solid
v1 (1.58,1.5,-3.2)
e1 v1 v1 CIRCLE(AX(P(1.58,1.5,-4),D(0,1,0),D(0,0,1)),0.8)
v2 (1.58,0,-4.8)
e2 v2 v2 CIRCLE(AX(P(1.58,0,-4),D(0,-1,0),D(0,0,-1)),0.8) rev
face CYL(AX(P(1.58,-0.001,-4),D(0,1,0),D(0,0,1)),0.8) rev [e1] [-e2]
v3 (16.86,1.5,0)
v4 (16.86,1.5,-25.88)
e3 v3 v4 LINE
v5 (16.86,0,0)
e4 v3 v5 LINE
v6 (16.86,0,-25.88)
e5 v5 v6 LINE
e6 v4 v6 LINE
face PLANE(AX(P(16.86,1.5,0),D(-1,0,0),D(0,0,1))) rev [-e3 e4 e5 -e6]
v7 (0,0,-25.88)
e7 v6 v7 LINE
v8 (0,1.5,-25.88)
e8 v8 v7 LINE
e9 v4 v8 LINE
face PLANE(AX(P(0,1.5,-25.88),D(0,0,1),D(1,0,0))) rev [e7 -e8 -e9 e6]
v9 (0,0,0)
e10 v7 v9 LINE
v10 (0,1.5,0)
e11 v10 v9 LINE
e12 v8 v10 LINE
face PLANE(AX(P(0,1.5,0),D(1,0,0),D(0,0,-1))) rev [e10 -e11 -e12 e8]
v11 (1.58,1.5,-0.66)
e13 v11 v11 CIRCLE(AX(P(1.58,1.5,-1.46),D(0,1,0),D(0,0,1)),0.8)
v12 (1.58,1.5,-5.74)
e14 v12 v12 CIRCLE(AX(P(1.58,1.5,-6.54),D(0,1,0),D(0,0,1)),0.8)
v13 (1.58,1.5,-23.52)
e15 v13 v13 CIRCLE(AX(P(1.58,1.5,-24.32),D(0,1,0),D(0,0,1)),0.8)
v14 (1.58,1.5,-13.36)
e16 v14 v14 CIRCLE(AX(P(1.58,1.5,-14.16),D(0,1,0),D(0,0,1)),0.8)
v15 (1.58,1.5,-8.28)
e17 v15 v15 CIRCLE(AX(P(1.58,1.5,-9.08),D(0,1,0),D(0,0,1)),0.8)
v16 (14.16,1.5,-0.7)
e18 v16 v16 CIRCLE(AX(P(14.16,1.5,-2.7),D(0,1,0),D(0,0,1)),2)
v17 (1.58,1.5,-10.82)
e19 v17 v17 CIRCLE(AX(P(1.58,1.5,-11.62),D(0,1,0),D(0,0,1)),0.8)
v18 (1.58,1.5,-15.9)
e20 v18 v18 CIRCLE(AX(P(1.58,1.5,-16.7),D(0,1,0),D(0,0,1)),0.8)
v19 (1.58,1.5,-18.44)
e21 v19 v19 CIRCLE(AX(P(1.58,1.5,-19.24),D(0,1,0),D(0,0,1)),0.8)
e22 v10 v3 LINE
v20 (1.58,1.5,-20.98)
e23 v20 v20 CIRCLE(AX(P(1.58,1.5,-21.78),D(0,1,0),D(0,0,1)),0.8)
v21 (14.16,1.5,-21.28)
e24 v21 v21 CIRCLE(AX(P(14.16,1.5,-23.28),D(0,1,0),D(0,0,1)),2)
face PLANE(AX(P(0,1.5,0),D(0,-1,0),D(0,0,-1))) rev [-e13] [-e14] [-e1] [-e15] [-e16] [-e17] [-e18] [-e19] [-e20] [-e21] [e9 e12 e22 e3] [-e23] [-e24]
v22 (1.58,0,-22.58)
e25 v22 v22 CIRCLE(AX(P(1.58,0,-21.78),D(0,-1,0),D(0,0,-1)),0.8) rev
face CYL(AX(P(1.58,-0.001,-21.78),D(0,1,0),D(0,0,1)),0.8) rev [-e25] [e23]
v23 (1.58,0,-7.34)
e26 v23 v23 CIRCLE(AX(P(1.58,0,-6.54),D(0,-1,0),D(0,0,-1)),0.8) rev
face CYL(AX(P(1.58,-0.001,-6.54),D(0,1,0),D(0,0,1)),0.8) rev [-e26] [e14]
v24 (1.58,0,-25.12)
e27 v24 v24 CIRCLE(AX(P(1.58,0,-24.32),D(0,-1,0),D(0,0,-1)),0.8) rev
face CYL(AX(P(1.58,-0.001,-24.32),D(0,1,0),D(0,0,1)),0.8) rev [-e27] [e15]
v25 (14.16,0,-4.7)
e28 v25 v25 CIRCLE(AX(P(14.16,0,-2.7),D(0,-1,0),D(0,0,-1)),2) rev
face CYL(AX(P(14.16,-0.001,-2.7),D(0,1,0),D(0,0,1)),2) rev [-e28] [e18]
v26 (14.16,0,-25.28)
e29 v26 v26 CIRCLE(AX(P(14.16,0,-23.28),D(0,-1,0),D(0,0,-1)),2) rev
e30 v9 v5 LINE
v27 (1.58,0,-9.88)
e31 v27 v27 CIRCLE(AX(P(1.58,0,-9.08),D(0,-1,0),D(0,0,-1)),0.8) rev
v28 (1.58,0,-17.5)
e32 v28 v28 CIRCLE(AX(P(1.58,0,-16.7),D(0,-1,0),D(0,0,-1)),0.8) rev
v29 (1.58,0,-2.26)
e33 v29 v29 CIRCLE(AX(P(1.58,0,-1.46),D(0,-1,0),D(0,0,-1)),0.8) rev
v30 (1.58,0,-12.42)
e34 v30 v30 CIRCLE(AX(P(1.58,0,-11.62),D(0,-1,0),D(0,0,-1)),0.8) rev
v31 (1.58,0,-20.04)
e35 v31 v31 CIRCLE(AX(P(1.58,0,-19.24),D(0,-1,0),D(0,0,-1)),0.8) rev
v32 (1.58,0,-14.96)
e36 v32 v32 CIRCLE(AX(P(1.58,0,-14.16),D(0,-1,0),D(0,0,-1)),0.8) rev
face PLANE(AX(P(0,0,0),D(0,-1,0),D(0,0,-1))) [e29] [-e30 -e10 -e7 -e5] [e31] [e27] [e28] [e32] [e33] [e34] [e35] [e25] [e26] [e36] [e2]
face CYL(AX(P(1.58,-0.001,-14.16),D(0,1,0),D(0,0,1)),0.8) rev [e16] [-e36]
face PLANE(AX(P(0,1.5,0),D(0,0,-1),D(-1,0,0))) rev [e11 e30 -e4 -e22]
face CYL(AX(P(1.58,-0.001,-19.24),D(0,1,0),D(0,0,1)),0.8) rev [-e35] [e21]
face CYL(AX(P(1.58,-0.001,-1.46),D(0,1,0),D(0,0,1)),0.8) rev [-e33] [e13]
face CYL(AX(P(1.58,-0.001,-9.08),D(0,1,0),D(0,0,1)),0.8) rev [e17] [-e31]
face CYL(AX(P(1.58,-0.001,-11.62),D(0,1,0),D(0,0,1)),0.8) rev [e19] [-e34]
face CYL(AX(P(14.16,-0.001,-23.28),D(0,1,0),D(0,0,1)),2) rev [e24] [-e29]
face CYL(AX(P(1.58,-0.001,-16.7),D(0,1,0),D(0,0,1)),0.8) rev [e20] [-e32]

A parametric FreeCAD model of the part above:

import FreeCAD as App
import Part
import Sketcher
from FreeCAD import Vector

doc = App.newDocument("Part")
body = doc.addObject("PartDesign::Body", "Body")

# Sketch on XZ plane
sketch1 = doc.addObject("Sketcher::SketchObject", "Sketch")
body.addObject(sketch1)
sketch1.AttachmentSupport = (doc.XZ_Plane, [""])
sketch1.MapMode = "FlatFace"
sketch1.addGeometry(Part.LineSegment(Vector(0, -25.88, 0), Vector(0, 0, 0)), False)
sketch1.addGeometry(Part.LineSegment(Vector(0, 0, 0), Vector(16.86, 0, 0)), False)
sketch1.addGeometry(Part.LineSegment(Vector(16.86, 0, 0), Vector(16.86, -25.88, 0)), False)
sketch1.addGeometry(Part.LineSegment(Vector(16.86, -25.88, 0), Vector(0, -25.88, 0)), False)
sketch1.addConstraint(Sketcher.Constraint("Coincident", 0, 2, 1, 1))
sketch1.addConstraint(Sketcher.Constraint("Coincident", 1, 2, 2, 1))
sketch1.addConstraint(Sketcher.Constraint("Coincident", 2, 2, 3, 1))
sketch1.addConstraint(Sketcher.Constraint("Coincident", 3, 2, 0, 1))
sketch1.addConstraint(Sketcher.Constraint("Vertical", 0))
sketch1.addConstraint(Sketcher.Constraint("Horizontal", 1))
sketch1.addConstraint(Sketcher.Constraint("Vertical", 2))
sketch1.addConstraint(Sketcher.Constraint("Horizontal", 3))
sketch1.addConstraint(Sketcher.Constraint("Coincident", 0, 2, -1, 1))
sketch1.addConstraint(Sketcher.Constraint("DistanceX", 1, 1, 1, 2, 16.86))
sketch1.addConstraint(Sketcher.Constraint("DistanceY", 0, 1, 0, 2, 25.88))
pad1 = doc.addObject("PartDesign::Pad", "Pad")
body.addObject(pad1)
pad1.Profile = sketch1
pad1.Length = 1.5
pad1.Reversed = True

# Sketch on XZ plane
sketch2 = doc.addObject("Sketcher::SketchObject", "Sketch001")
body.addObject(sketch2)
sketch2.AttachmentSupport = (doc.XZ_Plane, [""])
sketch2.MapMode = "FlatFace"
sketch2.AttachmentOffset = App.Placement(Vector(0, 0, -1.5), App.Rotation())
sketch2.addGeometry(Part.Circle(Vector(14.16, -23.28, 0), Vector(0, 0, 1), 2), False)
sketch2.addConstraint(Sketcher.Constraint("Diameter", 0, 4.0))
sketch2.addConstraint(Sketcher.Constraint("DistanceX", -1, 1, 0, 3, 14.16))
sketch2.addConstraint(Sketcher.Constraint("DistanceY", 0, 3, -1, 1, 23.28))
pocket1 = doc.addObject("PartDesign::Pocket", "Pocket")
body.addObject(pocket1)
pocket1.Profile = sketch2
pocket1.Type = "UpToFirst"
pocket1.Reversed = True

# Sketch on XZ plane
sketch3 = doc.addObject("Sketcher::SketchObject", "Sketch002")
body.addObject(sketch3)
sketch3.AttachmentSupport = (doc.XZ_Plane, [""])
sketch3.MapMode = "FlatFace"
sketch3.AttachmentOffset = App.Placement(Vector(0, 0, -1.5), App.Rotation())
sketch3.addGeometry(Part.Circle(Vector(14.16, -2.7, 0), Vector(0, 0, 1), 2), False)
sketch3.addConstraint(Sketcher.Constraint("Diameter", 0, 4.0))
sketch3.addConstraint(Sketcher.Constraint("DistanceY", 0, 3, -1, 1, 2.7))
sketch3.addConstraint(Sketcher.Constraint("DistanceX", -1, 1, 0, 3, 14.16))
pocket2 = doc.addObject("PartDesign::Pocket", "Pocket001")
body.addObject(pocket2)
pocket2.Profile = sketch3
pocket2.Type = "UpToFirst"
pocket2.Reversed = True

# Sketch on XZ plane
sketch4 = doc.addObject("Sketcher::SketchObject", "Sketch003")
body.addObject(sketch4)
sketch4.AttachmentSupport = (doc.XZ_Plane, [""])
sketch4.MapMode = "FlatFace"
sketch4.AttachmentOffset = App.Placement(Vector(0, 0, -1.5), App.Rotation())
sketch4.addGeometry(Part.Circle(Vector(1.58, -24.32, 0), Vector(0, 0, 1), 0.8), False)
sketch4.addConstraint(Sketcher.Constraint("Diameter", 0, 1.6))
sketch4.addConstraint(Sketcher.Constraint("DistanceX", -1, 1, 0, 3, 1.58))
sketch4.addConstraint(Sketcher.Constraint("DistanceY", 0, 3, -1, 1, 24.32))
pocket3 = doc.addObject("PartDesign::Pocket", "Pocket002")
body.addObject(pocket3)
pocket3.Profile = sketch4
pocket3.Type = "UpToFirst"
pocket3.Reversed = True

# Sketch on XZ plane
sketch5 = doc.addObject("Sketcher::SketchObject", "Sketch004")
body.addObject(sketch5)
sketch5.AttachmentSupport = (doc.XZ_Plane, [""])
sketch5.MapMode = "FlatFace"
sketch5.AttachmentOffset = App.Placement(Vector(0, 0, -1.5), App.Rotation())
sketch5.addGeometry(Part.Circle(Vector(1.58, -21.78, 0), Vector(0, 0, 1), 0.8), False)
sketch5.addConstraint(Sketcher.Constraint("Diameter", 0, 1.6))
sketch5.addConstraint(Sketcher.Constraint("DistanceX", -1, 1, 0, 3, 1.58))
sketch5.addConstraint(Sketcher.Constraint("DistanceY", 0, 3, -1, 1, 21.78))
pocket4 = doc.addObject("PartDesign::Pocket", "Pocket003")
body.addObject(pocket4)
pocket4.Profile = sketch5
pocket4.Type = "UpToFirst"
pocket4.Reversed = True

# Sketch on XZ plane
sketch6 = doc.addObject("Sketcher::SketchObject", "Sketch005")
body.addObject(sketch6)
sketch6.AttachmentSupport = (doc.XZ_Plane, [""])
sketch6.MapMode = "FlatFace"
sketch6.AttachmentOffset = App.Placement(Vector(0, 0, -1.5), App.Rotation())
sketch6.addGeometry(Part.Circle(Vector(1.58, -19.24, 0), Vector(0, 0, 1), 0.8), False)
sketch6.addConstraint(Sketcher.Constraint("Diameter", 0, 1.6))
sketch6.addConstraint(Sketcher.Constraint("DistanceX", -1, 1, 0, 3, 1.58))
sketch6.addConstraint(Sketcher.Constraint("DistanceY", 0, 3, -1, 1, 19.24))
pocket5 = doc.addObject("PartDesign::Pocket", "Pocket004")
body.addObject(pocket5)
pocket5.Profile = sketch6
pocket5.Type = "UpToFirst"
pocket5.Reversed = True

# Sketch on XZ plane
sketch7 = doc.addObject("Sketcher::SketchObject", "Sketch006")
body.addObject(sketch7)
sketch7.AttachmentSupport = (doc.XZ_Plane, [""])
sketch7.MapMode = "FlatFace"
sketch7.AttachmentOffset = App.Placement(Vector(0, 0, -1.5), App.Rotation())
sketch7.addGeometry(Part.Circle(Vector(1.58, -16.7, 0), Vector(0, 0, 1), 0.8), False)
sketch7.addConstraint(Sketcher.Constraint("Diameter", 0, 1.6))
sketch7.addConstraint(Sketcher.Constraint("DistanceY", 0, 3, -1, 1, 16.7))
sketch7.addConstraint(Sketcher.Constraint("DistanceX", -1, 1, 0, 3, 1.58))
pocket6 = doc.addObject("PartDesign::Pocket", "Pocket005")
body.addObject(pocket6)
pocket6.Profile = sketch7
pocket6.Type = "UpToFirst"
pocket6.Reversed = True

# Sketch on XZ plane
sketch8 = doc.addObject("Sketcher::SketchObject", "Sketch007")
body.addObject(sketch8)
sketch8.AttachmentSupport = (doc.XZ_Plane, [""])
sketch8.MapMode = "FlatFace"
sketch8.AttachmentOffset = App.Placement(Vector(0, 0, -1.5), App.Rotation())
sketch8.addGeometry(Part.Circle(Vector(1.58, -14.16, 0), Vector(0, 0, 1), 0.8), False)
sketch8.addConstraint(Sketcher.Constraint("Diameter", 0, 1.6))
sketch8.addConstraint(Sketcher.Constraint("DistanceX", -1, 1, 0, 3, 1.58))
sketch8.addConstraint(Sketcher.Constraint("DistanceY", 0, 3, -1, 1, 14.16))
pocket7 = doc.addObject("PartDesign::Pocket", "Pocket006")
body.addObject(pocket7)
pocket7.Profile = sketch8
pocket7.Type = "UpToFirst"
pocket7.Reversed = True

# Sketch on XZ plane
sketch9 = doc.addObject("Sketcher::SketchObject", "Sketch008")
body.addObject(sketch9)
sketch9.AttachmentSupport = (doc.XZ_Plane, [""])
sketch9.MapMode = "FlatFace"
sketch9.AttachmentOffset = App.Placement(Vector(0, 0, -1.5), App.Rotation())
sketch9.addGeometry(Part.Circle(Vector(1.58, -11.62, 0), Vector(0, 0, 1), 0.8), False)
sketch9.addConstraint(Sketcher.Constraint("Diameter", 0, 1.6))
sketch9.addConstraint(Sketcher.Constraint("DistanceX", -1, 1, 0, 3, 1.58))
sketch9.addConstraint(Sketcher.Constraint("DistanceY", 0, 3, -1, 1, 11.62))
pocket8 = doc.addObject("PartDesign::Pocket", "Pocket007")
body.addObject(pocket8)
pocket8.Profile = sketch9
pocket8.Type = "UpToFirst"
pocket8.Reversed = True

# Sketch on XZ plane
sketch10 = doc.addObject("Sketcher::SketchObject", "Sketch009")
body.addObject(sketch10)
sketch10.AttachmentSupport = (doc.XZ_Plane, [""])
sketch10.MapMode = "FlatFace"
sketch10.AttachmentOffset = App.Placement(Vector(0, 0, -1.5), App.Rotation())
sketch10.addGeometry(Part.Circle(Vector(1.58, -9.08, 0), Vector(0, 0, 1), 0.8), False)
sketch10.addConstraint(Sketcher.Constraint("Diameter", 0, 1.6))
sketch10.addConstraint(Sketcher.Constraint("DistanceX", -1, 1, 0, 3, 1.58))
sketch10.addConstraint(Sketcher.Constraint("DistanceY", 0, 3, -1, 1, 9.08))
pocket9 = doc.addObject("PartDesign::Pocket", "Pocket008")
body.addObject(pocket9)
pocket9.Profile = sketch10
pocket9.Type = "UpToFirst"
pocket9.Reversed = True

# Sketch on XZ plane
sketch11 = doc.addObject("Sketcher::SketchObject", "Sketch010")
body.addObject(sketch11)
sketch11.AttachmentSupport = (doc.XZ_Plane, [""])
sketch11.MapMode = "FlatFace"
sketch11.AttachmentOffset = App.Placement(Vector(0, 0, -1.5), App.Rotation())
sketch11.addGeometry(Part.Circle(Vector(1.58, -6.54, 0), Vector(0, 0, 1), 0.8), False)
sketch11.addConstraint(Sketcher.Constraint("Diameter", 0, 1.6))
sketch11.addConstraint(Sketcher.Constraint("DistanceX", -1, 1, 0, 3, 1.58))
sketch11.addConstraint(Sketcher.Constraint("DistanceY", 0, 3, -1, 1, 6.54))
pocket10 = doc.addObject("PartDesign::Pocket", "Pocket009")
body.addObject(pocket10)
pocket10.Profile = sketch11
pocket10.Type = "UpToFirst"
pocket10.Reversed = True

# Sketch on XZ plane
sketch12 = doc.addObject("Sketcher::SketchObject", "Sketch011")
body.addObject(sketch12)
sketch12.AttachmentSupport = (doc.XZ_Plane, [""])
sketch12.MapMode = "FlatFace"
sketch12.AttachmentOffset = App.Placement(Vector(0, 0, -1.5), App.Rotation())
sketch12.addGeometry(Part.Circle(Vector(1.58, -4, 0), Vector(0, 0, 1), 0.8), False)
sketch12.addConstraint(Sketcher.Constraint("Diameter", 0, 1.6))
sketch12.addConstraint(Sketcher.Constraint("DistanceY", 0, 3, -1, 1, 4.0))
sketch12.addConstraint(Sketcher.Constraint("DistanceX", -1, 1, 0, 3, 1.58))
pocket11 = doc.addObject("PartDesign::Pocket", "Pocket010")
body.addObject(pocket11)
pocket11.Profile = sketch12
pocket11.Type = "UpToFirst"
pocket11.Reversed = True

# Sketch on XZ plane
sketch13 = doc.addObject("Sketcher::SketchObject", "Sketch012")
body.addObject(sketch13)
sketch13.AttachmentSupport = (doc.XZ_Plane, [""])
sketch13.MapMode = "FlatFace"
sketch13.AttachmentOffset = App.Placement(Vector(0, 0, -1.5), App.Rotation())
sketch13.addGeometry(Part.Circle(Vector(1.58, -1.46, 0), Vector(0, 0, 1), 0.8), False)
sketch13.addConstraint(Sketcher.Constraint("Diameter", 0, 1.6))
sketch13.addConstraint(Sketcher.Constraint("DistanceX", -1, 1, 0, 3, 1.58))
sketch13.addConstraint(Sketcher.Constraint("DistanceY", 0, 3, -1, 1, 1.46))
pocket12 = doc.addObject("PartDesign::Pocket", "Pocket011")
body.addObject(pocket12)
pocket12.Profile = sketch13
pocket12.Type = "UpToFirst"
pocket12.Reversed = True

doc.recompute()
